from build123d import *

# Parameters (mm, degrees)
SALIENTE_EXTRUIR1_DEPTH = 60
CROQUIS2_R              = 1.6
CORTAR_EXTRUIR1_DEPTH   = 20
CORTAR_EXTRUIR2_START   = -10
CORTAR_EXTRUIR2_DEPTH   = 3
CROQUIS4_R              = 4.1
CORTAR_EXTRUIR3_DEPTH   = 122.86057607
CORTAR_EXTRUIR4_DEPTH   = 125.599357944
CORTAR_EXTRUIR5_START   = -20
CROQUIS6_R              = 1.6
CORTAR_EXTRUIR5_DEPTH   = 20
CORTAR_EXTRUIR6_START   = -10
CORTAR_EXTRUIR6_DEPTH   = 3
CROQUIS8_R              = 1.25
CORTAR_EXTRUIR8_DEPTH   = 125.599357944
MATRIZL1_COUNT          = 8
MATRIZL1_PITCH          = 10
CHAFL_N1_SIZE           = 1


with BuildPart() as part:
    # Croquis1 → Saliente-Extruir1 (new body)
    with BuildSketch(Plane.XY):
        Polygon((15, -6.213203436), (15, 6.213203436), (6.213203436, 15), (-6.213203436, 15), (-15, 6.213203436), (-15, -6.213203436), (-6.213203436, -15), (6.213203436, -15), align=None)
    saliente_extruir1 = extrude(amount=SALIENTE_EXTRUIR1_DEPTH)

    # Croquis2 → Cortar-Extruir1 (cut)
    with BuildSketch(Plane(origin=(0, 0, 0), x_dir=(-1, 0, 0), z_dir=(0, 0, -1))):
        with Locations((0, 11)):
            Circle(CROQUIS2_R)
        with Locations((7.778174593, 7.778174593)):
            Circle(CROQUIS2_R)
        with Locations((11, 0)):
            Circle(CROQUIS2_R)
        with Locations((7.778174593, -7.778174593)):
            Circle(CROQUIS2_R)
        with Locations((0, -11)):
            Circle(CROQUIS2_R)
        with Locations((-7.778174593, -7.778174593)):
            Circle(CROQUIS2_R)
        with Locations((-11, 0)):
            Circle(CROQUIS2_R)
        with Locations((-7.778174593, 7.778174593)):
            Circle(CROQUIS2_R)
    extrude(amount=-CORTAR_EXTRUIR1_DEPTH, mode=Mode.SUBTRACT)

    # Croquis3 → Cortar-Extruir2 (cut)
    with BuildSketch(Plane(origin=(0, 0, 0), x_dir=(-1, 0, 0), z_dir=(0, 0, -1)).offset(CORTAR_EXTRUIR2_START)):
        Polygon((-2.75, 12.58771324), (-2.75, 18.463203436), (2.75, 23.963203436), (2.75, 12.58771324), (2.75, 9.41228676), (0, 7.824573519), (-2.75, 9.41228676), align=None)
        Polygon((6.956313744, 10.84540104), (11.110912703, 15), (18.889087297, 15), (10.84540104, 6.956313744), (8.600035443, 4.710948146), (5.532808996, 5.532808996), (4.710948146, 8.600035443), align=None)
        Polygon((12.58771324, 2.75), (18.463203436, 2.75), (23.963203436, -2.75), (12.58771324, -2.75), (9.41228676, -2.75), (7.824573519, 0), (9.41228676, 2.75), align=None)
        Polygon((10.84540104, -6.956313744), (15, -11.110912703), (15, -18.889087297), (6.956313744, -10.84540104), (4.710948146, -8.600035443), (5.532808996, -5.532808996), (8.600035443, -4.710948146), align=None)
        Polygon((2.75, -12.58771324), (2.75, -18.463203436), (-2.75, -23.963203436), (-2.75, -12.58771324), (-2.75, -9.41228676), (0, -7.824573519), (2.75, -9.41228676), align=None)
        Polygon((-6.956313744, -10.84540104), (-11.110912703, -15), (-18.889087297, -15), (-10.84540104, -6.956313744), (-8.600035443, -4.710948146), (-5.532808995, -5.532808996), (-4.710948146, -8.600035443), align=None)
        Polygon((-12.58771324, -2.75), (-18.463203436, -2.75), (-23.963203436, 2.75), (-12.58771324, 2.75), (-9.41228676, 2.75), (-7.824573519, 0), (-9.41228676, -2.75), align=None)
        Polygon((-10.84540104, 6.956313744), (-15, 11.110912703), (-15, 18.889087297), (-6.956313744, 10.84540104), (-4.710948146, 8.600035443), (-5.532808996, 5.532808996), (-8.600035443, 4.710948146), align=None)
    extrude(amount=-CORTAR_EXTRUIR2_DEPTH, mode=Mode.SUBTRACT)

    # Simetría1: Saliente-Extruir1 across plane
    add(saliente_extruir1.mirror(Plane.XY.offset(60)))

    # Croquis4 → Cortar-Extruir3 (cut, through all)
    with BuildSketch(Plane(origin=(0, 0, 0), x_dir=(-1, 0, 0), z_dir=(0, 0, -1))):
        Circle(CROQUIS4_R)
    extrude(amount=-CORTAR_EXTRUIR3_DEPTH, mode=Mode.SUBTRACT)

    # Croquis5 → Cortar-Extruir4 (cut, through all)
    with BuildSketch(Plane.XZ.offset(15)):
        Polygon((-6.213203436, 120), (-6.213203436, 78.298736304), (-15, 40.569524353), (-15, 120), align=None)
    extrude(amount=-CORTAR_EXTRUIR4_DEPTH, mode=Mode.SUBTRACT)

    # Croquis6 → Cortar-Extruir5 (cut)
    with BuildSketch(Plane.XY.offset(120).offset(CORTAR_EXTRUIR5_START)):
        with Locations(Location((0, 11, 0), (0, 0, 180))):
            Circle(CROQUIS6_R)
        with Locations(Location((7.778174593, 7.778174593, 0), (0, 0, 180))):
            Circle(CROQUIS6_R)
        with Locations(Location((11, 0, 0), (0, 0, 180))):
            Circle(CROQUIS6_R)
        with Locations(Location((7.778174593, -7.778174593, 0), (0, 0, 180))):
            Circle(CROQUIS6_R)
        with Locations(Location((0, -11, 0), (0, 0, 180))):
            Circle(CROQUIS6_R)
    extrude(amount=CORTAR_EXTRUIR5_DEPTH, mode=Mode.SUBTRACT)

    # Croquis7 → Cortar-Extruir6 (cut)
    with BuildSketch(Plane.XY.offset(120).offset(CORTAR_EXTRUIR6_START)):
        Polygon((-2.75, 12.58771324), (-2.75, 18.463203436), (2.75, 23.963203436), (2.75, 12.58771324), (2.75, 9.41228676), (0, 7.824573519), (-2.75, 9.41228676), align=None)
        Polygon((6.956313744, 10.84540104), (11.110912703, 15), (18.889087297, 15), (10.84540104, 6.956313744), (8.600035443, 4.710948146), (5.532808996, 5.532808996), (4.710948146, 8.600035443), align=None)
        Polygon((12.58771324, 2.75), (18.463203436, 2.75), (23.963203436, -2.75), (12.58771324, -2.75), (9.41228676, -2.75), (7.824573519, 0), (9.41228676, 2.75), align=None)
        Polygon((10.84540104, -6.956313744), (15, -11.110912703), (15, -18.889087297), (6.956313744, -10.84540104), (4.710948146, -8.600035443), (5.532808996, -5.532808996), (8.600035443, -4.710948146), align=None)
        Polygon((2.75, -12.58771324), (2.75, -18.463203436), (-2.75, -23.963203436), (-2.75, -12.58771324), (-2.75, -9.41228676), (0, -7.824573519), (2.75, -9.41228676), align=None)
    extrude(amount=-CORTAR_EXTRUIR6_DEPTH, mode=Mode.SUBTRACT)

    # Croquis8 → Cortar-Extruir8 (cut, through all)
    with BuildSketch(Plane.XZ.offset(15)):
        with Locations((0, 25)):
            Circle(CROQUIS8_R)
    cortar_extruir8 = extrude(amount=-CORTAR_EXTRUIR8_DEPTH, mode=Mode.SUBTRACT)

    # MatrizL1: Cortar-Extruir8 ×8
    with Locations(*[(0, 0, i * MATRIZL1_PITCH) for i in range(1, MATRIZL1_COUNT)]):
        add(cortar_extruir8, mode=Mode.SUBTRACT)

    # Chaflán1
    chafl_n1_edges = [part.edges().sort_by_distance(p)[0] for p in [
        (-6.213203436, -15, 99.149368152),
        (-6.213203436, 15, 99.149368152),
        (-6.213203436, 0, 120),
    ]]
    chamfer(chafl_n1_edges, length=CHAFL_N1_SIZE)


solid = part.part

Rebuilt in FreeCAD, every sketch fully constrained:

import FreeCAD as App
import Part
import Sketcher
Q = App.Units.Quantity


def edges_at(feature, points):
    """Names of the edges that pass closest to the given points."""
    edges = feature.Shape.Edges
    near = lambda p: min(range(len(edges)), key=lambda i: edges[i].distToShape(Part.Vertex(*p))[0])
    return sorted({f"Edge{near(p) + 1}" for p in points})


def add_polygon(sketch, points):
    """Adds a closed chain of lines whose ends are joined by coincident constraints."""
    first, n = sketch.GeometryCount, len(points)
    for a, b in zip(points, points[1:] + points[:1]):
        sketch.addGeometry(Part.LineSegment(App.Vector(*a, 0), App.Vector(*b, 0)), False)
    for i in range(n):
        sketch.addConstraint(Sketcher.Constraint("Coincident", first + i, 2, first + (i + 1) % n, 1))

doc = App.newDocument("Part")
body = doc.addObject("PartDesign::Body", "Body")

sketch1 = body.newObject("Sketcher::SketchObject", "Sketch")
sketch1.AttachmentSupport = (doc.getObject("XY_Plane"), [""])
sketch1.MapMode = "FlatFace"
add_polygon(sketch1, [(15, -6), (15, 6), (6, 15), (-6, 15), (-15, 6), (-15, -6), (-6, -15), (6, -15)])
sketch1.addConstraint([
    Sketcher.Constraint("Vertical", 0),
    Sketcher.Constraint("Horizontal", 2),
    Sketcher.Constraint("Vertical", 4),
    Sketcher.Constraint("Horizontal", 6),
    Sketcher.Constraint("Symmetric", 0, 2, 4, 2, -1, 1),
    Sketcher.Constraint("Symmetric", 1, 2, 5, 2, -1, 1),
    Sketcher.Constraint("Perpendicular", 1, 3),
    Sketcher.Constraint("Perpendicular", 5, 7),
    Sketcher.Constraint("Horizontal", 0, 2, 3, 2),
    Sketcher.Constraint("Horizontal", 4, 2, 7, 2),
    Sketcher.Constraint("Vertical", 2, 2, 5, 2),
    Sketcher.Constraint("Equal", 6, 0),
    Sketcher.Constraint("DistanceX", -1, 1, 0, 2, Q("15 mm")),
    Sketcher.Constraint("DistanceX", 2, 2, 2, 1, Q("12.426407 mm")),
])
pad1 = body.newObject("PartDesign::Pad", "Pad")
pad1.Profile = sketch1
pad1.Length = 60

sketch2 = body.newObject("Sketcher::SketchObject", "Sketch001")
sketch2.AttachmentSupport = (doc.getObject("XY_Plane"), [""])
sketch2.MapMode = "FlatFace"
sketch2.addGeometry([
    Part.Circle(App.Vector(0, 11, 0), App.Vector(0, 0, 1), 1.6),
    Part.Circle(App.Vector(-7.8, 7.8, 0), App.Vector(0, 0, 1), 1.6),
    Part.Circle(App.Vector(-11, 0, 0), App.Vector(0, 0, 1), 1.6),
    Part.Circle(App.Vector(-7.8, -7.8, 0), App.Vector(0, 0, 1), 1.6),
    Part.Circle(App.Vector(0, -11, 0), App.Vector(0, 0, 1), 1.6),
    Part.Circle(App.Vector(7.8, -7.8, 0), App.Vector(0, 0, 1), 1.6),
    Part.Circle(App.Vector(11, 0, 0), App.Vector(0, 0, 1), 1.6),
    Part.Circle(App.Vector(7.8, 7.8, 0), App.Vector(0, 0, 1), 1.6),
], False)
sketch2.addConstraint([
    Sketcher.Constraint("Equal", 0, 1),
    Sketcher.Constraint("Equal", 1, 2),
    Sketcher.Constraint("Equal", 2, 3),
    Sketcher.Constraint("Equal", 3, 4),
    Sketcher.Constraint("Equal", 4, 5),
    Sketcher.Constraint("Equal", 5, 6),
    Sketcher.Constraint("Equal", 6, 7),
    Sketcher.Constraint("Symmetric", 0, 3, 4, 3, -1, 1),
    Sketcher.Constraint("Symmetric", 1, 3, 5, 3, -1, 1),
    Sketcher.Constraint("Symmetric", 2, 3, 6, 3, -1, 1),
    Sketcher.Constraint("Symmetric", 3, 3, 7, 3, -1, 1),
    Sketcher.Constraint("Symmetric", 3, 3, 5, 3, -2),
    Sketcher.Constraint("PointOnObject", 0, 3, -2),
    Sketcher.Constraint("PointOnObject", 2, 3, -1),
    Sketcher.Constraint("Diameter", 0, Q("3.2 mm")),
    Sketcher.Constraint("DistanceY", -1, 1, 0, 3, Q("11 mm")),
    Sketcher.Constraint("DistanceX", 2, 3, -1, 1, Q("11 mm")),
    Sketcher.Constraint("DistanceY", 3, 3, 1, 3, Q("15.556349 mm")),
    Sketcher.Constraint("DistanceX", 3, 3, 5, 3, Q("15.556349 mm")),
])
pocket1 = body.newObject("PartDesign::Pocket", "Pocket")
pocket1.Profile = sketch2
pocket1.Length = 20
pocket1.Reversed = True

sketch3 = body.newObject("Sketcher::SketchObject", "Sketch002")
sketch3.AttachmentSupport = (doc.getObject("XY_Plane"), [""])
sketch3.MapMode = "FlatFace"
sketch3.AttachmentOffset = App.Placement(App.Vector(0, 0, 10), App.Rotation())
add_polygon(sketch3, [(2.8, 18.5), (2.8, 9.4), (0, 7.8), (-2.8, 9.4), (-2.8, 24)])
add_polygon(sketch3, [(-11.1, 15), (-7, 10.8), (-4.7, 8.6), (-5.5, 5.5), (-8.6, 4.7), (-10.8, 7), (-18.9, 15)])
add_polygon(sketch3, [(-18.5, 2.8), (-9.4, 2.8), (-7.8, 0), (-9.4, -2.8), (-24, -2.8)])
add_polygon(sketch3, [(-15, -11.1), (-10.8, -7), (-8.6, -4.7), (-5.5, -5.5), (-4.7, -8.6), (-7, -10.8), (-15, -18.9)])
add_polygon(sketch3, [(-2.8, -18.5), (-2.8, -9.4), (0, -7.8), (2.8, -9.4), (2.8, -24)])
add_polygon(sketch3, [(11.1, -15), (7, -10.8), (4.7, -8.6), (5.5, -5.5), (8.6, -4.7), (10.8, -7), (18.9, -15)])
add_polygon(sketch3, [(18.5, -2.8), (9.4, -2.8), (7.8, 0), (9.4, 2.8), (24, 2.8)])
add_polygon(sketch3, [(15, 11.1), (10.8, 7), (8.6, 4.7), (5.5, 5.5), (4.7, 8.6), (7, 10.8), (15, 18.9)])
sketch3.addConstraint([
    Sketcher.Constraint("Vertical", 0),
    Sketcher.Constraint("Vertical", 3),
    Sketcher.Constraint("Horizontal", 11),
    Sketcher.Constraint("Horizontal", 12),
    Sketcher.Constraint("Horizontal", 15),
    Sketcher.Constraint("Vertical", 23),
    Sketcher.Constraint("Vertical", 24),
    Sketcher.Constraint("Vertical", 27),
    Sketcher.Constraint("Horizontal", 35),
    Sketcher.Constraint("Horizontal", 36),
    Sketcher.Constraint("Horizontal", 39),
    Sketcher.Constraint("Vertical", 47),
    Sketcher.Constraint("Symmetric", 0, 2, 24, 2, -1, 1),
    Sketcher.Constraint("Symmetric", 1, 2, 25, 2, -1, 1),
    Sketcher.Constraint("Symmetric", 2, 2, 26, 2, -1, 1),
    Sketcher.Constraint("Symmetric", 5, 2, 29, 2, -1, 1),
    Sketcher.Constraint("Symmetric", 6, 2, 30, 2, -1, 1),
    Sketcher.Constraint("Symmetric", 7, 2, 31, 2, -1, 1),
    Sketcher.Constraint("Symmetric", 8, 2, 32, 2, -1, 1),
    Sketcher.Constraint("Symmetric", 9, 2, 33, 2, -1, 1),
    Sketcher.Constraint("Symmetric", 10, 2, 34, 2, -1, 1),
    Sketcher.Constraint("Symmetric", 12, 2, 36, 2, -1, 1),
    Sketcher.Constraint("Symmetric", 13, 2, 37, 2, -1, 1),
    Sketcher.Constraint("Symmetric", 14, 2, 38, 2, -1, 1),
    Sketcher.Constraint("Symmetric", 17, 2, 41, 2, -1, 1),
    Sketcher.Constraint("Symmetric", 18, 2, 42, 2, -1, 1),
    Sketcher.Constraint("Symmetric", 19, 2, 43, 2, -1, 1),
    Sketcher.Constraint("Symmetric", 20, 2, 44, 2, -1, 1),
    Sketcher.Constraint("Symmetric", 21, 2, 45, 2, -1, 1),
    Sketcher.Constraint("Symmetric", 22, 2, 46, 2, -1, 1),
    Sketcher.Constraint("Symmetric", 0, 2, 2, 2, -2),
    Sketcher.Constraint("Symmetric", 21, 2, 29, 2, -2),
    Sketcher.Constraint("Symmetric", 20, 2, 30, 2, -2),
    Sketcher.Constraint("Symmetric", 19, 2, 31, 2, -2),
    Sketcher.Constraint("Symmetric", 18, 2, 32, 2, -2),
    Sketcher.Constraint("Symmetric", 17, 2, 33, 2, -2),
    Sketcher.Constraint("Symmetric", 14, 2, 36, 2, -2),
    Sketcher.Constraint("PointOnObject", 1, 2, -2),
    Sketcher.Constraint("PointOnObject", 13, 2, -1),
    Sketcher.Constraint("Parallel", 4, 5),
    Sketcher.Constraint("Parallel", 5, 6),
    Sketcher.Constraint("Parallel", 6, 9),
    Sketcher.Constraint("Parallel", 9, 10),
    Sketcher.Constraint("Perpendicular", 1, 13),
    Sketcher.Constraint("Perpendicular", 10, 16),
    Sketcher.Constraint("Parallel", 16, 17),
    Sketcher.Constraint("Parallel", 17, 18),
    Sketcher.Constraint("Perpendicular", 7, 19),
    Sketcher.Constraint("Parallel", 21, 22),
    Sketcher.Constraint("Perpendicular", 22, 28),
    Sketcher.Constraint("Parallel", 28, 29),
    Sketcher.Constraint("Perpendicular", 34, 40),
    Sketcher.Constraint("Parallel", 40, 41),
    Sketcher.Constraint("Equal", 12, 36),
    Sketcher.Constraint("Equal", 36, 0),
    Sketcher.Constraint("Equal", 39, 3),
    Sketcher.Constraint("Equal", 0, 24),
    Sketcher.Constraint("Equal", 2, 6),
    Sketcher.Constraint("Equal", 6, 7),
    Sketcher.Constraint("Equal", 7, 8),
    Sketcher.Constraint("Equal", 8, 9),
    Sketcher.Constraint("Equal", 5, 17),
    Sketcher.Constraint("Angle", 1, Q("-150 deg")),
    Sketcher.Constraint("Angle", 7, Q("-105 deg")),
    Sketcher.Constraint("DistanceY", -1, 1, 10, 2, Q("15 mm")),
    Sketcher.Constraint("DistanceX", 22, 2, -1, 1, Q("15 mm")),
    Sketcher.Constraint("DistanceX", 2, 2, 0, 2, Q("5.5 mm")),
    Sketcher.Constraint("DistanceY", -1, 1, 5, 2, Q("10.845401 mm")),
    Sketcher.Constraint("DistanceY", 0, 2, 46, 2, Q("9.476801 mm")),
    Sketcher.Constraint("DistanceX", 12, 1, 12, 2, Q("9.050917 mm")),
    Sketcher.Constraint("DistanceX", 12, 2, 8, 2, Q("0.812251 mm")),
])
pocket2 = body.newObject("PartDesign::Pocket", "Pocket001")
pocket2.Profile = sketch3
pocket2.Length = 3
pocket2.Reversed = True
doc.recompute()

datumplane = body.newObject("PartDesign::Plane", "DatumPlane")
datumplane.AttachmentSupport = (doc.getObject("XY_Plane"), [""])
datumplane.MapMode = "FlatFace"
datumplane.AttachmentOffset = App.Placement(App.Vector(0, 0, 60), App.Rotation())
mirrored = body.newObject("PartDesign::Mirrored", "Mirrored")
mirrored.Originals = [pad1]
mirrored.MirrorPlane = (datumplane, [""])
body.Tip = mirrored

sketch4 = body.newObject("Sketcher::SketchObject", "Sketch003")
sketch4.AttachmentSupport = (doc.getObject("XY_Plane"), [""])
sketch4.MapMode = "FlatFace"
sketch4.addGeometry(Part.Circle(App.Vector(0, 0, 0), App.Vector(0, 0, 1), 4.1), False)
sketch4.addConstraint([
    Sketcher.Constraint("Coincident", 0, 3, -1, 1),
    Sketcher.Constraint("Diameter", 0, Q("8.2 mm")),
])
pocket3 = body.newObject("PartDesign::Pocket", "Pocket002")
pocket3.Profile = sketch4
pocket3.Type = "ThroughAll"
pocket3.Reversed = True

sketch5 = body.newObject("Sketcher::SketchObject", "Sketch004")
sketch5.AttachmentSupport = (doc.getObject("XZ_Plane"), [""])
sketch5.MapMode = "FlatFace"
sketch5.AttachmentOffset = App.Placement(App.Vector(0, 0, 15), App.Rotation())
add_polygon(sketch5, [(-6, 78), (-6, 120), (-15, 120), (-15, 41)])
sketch5.addConstraint([
    Sketcher.Constraint("Vertical", 0),
    Sketcher.Constraint("Horizontal", 1),
    Sketcher.Constraint("Vertical", 2),
    Sketcher.Constraint("DistanceY", -1, 1, 0, 2, Q("120 mm")),
    Sketcher.Constraint("DistanceX", 1, 2, -1, 1, Q("15 mm")),
    Sketcher.Constraint("Angle", 3, Q("76.890011 deg")),
    Sketcher.Constraint("DistanceX", 1, 2, 1, 1, Q("8.786797 mm")),
    Sketcher.Constraint("DistanceY", 0, 1, 0, 2, Q("41.701264 mm")),
])
pocket4 = body.newObject("PartDesign::Pocket", "Pocket003")
pocket4.Profile = sketch5
pocket4.Type = "ThroughAll"

sketch6 = body.newObject("Sketcher::SketchObject", "Sketch005")
sketch6.AttachmentSupport = (doc.getObject("XY_Plane"), [""])
sketch6.MapMode = "FlatFace"
sketch6.AttachmentOffset = App.Placement(App.Vector(0, 0, 100), App.Rotation())
sketch6.addGeometry([
    Part.Circle(App.Vector(0, 11, 0), App.Vector(0, 0, 1), 1.6),
    Part.Circle(App.Vector(7.8, 7.8, 0), App.Vector(0, 0, 1), 1.6),
    Part.Circle(App.Vector(11, 0, 0), App.Vector(0, 0, 1), 1.6),
    Part.Circle(App.Vector(7.8, -7.8, 0), App.Vector(0, 0, 1), 1.6),
    Part.Circle(App.Vector(0, -11, 0), App.Vector(0, 0, 1), 1.6),
], False)
sketch6.addConstraint([
    Sketcher.Constraint("Equal", 0, 1),
    Sketcher.Constraint("Equal", 1, 2),
    Sketcher.Constraint("Equal", 2, 3),
    Sketcher.Constraint("Equal", 3, 4),
    Sketcher.Constraint("Symmetric", 0, 3, 4, 3, -1, 1),
    Sketcher.Constraint("Symmetric", 1, 3, 3, 3, -1),
    Sketcher.Constraint("PointOnObject", 0, 3, -2),
    Sketcher.Constraint("PointOnObject", 2, 3, -1),
    Sketcher.Constraint("Diameter", 0, Q("3.2 mm")),
    Sketcher.Constraint("DistanceY", -1, 1, 0, 3, Q("11 mm")),
    Sketcher.Constraint("DistanceX", -1, 1, 2, 3, Q("11 mm")),
    Sketcher.Constraint("DistanceY", 3, 3, 1, 3, Q("15.556349 mm")),
    Sketcher.Constraint("DistanceX", -1, 1, 1, 3, Q("7.778175 mm")),
])
pocket5 = body.newObject("PartDesign::Pocket", "Pocket004")
pocket5.Profile = sketch6
pocket5.Length = 20
pocket5.Reversed = True

sketch7 = body.newObject("Sketcher::SketchObject", "Sketch006")
sketch7.AttachmentSupport = (doc.getObject("XY_Plane"), [""])
sketch7.MapMode = "FlatFace"
sketch7.AttachmentOffset = App.Placement(App.Vector(0, 0, 110), App.Rotation())
add_polygon(sketch7, [(-2.8, 18.5), (-2.8, 9.4), (0, 7.8), (2.8, 9.4), (2.8, 24)])
add_polygon(sketch7, [(11.1, 15), (7, 10.8), (4.7, 8.6), (5.5, 5.5), (8.6, 4.7), (10.8, 7), (18.9, 15)])
add_polygon(sketch7, [(18.5, 2.8), (9.4, 2.8), (7.8, 0), (9.4, -2.8), (24, -2.8)])
add_polygon(sketch7, [(15, -11.1), (10.8, -7), (8.6, -4.7), (5.5, -5.5), (4.7, -8.6), (7, -10.8), (15, -18.9)])
add_polygon(sketch7, [(2.8, -18.5), (2.8, -9.4), (0, -7.8), (-2.8, -9.4), (-2.8, -24)])
sketch7.addConstraint([
    Sketcher.Constraint("Vertical", 0),
    Sketcher.Constraint("Vertical", 3),
    Sketcher.Constraint("Horizontal", 11),
    Sketcher.Constraint("Horizontal", 12),
    Sketcher.Constraint("Horizontal", 15),
    Sketcher.Constraint("Vertical", 23),
    Sketcher.Constraint("Vertical", 24),
    Sketcher.Constraint("Vertical", 27),
    Sketcher.Constraint("Symmetric", 0, 2, 24, 2, -1, 1),
    Sketcher.Constraint("Symmetric", 1, 2, 25, 2, -1, 1),
    Sketcher.Constraint("Symmetric", 2, 2, 26, 2, -1, 1),
    Sketcher.Constraint("Symmetric", 0, 2, 2, 2, -2),
    Sketcher.Constraint("Symmetric", 12, 2, 14, 2, -1),
    Sketcher.Constraint("Symmetric", 9, 2, 17, 2, -1),
    Sketcher.Constraint("Symmetric", 8, 2, 18, 2, -1),
    Sketcher.Constraint("Symmetric", 7, 2, 19, 2, -1),
    Sketcher.Constraint("Symmetric", 6, 2, 20, 2, -1),
    Sketcher.Constraint("Symmetric", 5, 2, 21, 2, -1),
    Sketcher.Constraint("PointOnObject", 1, 2, -2),
    Sketcher.Constraint("PointOnObject", 13, 2, -1),
    Sketcher.Constraint("Parallel", 4, 5),
    Sketcher.Constraint("Parallel", 5, 6),
    Sketcher.Constraint("Parallel", 6, 9),
    Sketcher.Constraint("Parallel", 9, 10),
    Sketcher.Constraint("Perpendicular", 1, 13),
    Sketcher.Constraint("Perpendicular", 10, 16),
    Sketcher.Constraint("Parallel", 16, 17),
    Sketcher.Constraint("Parallel", 17, 18),
    Sketcher.Constraint("Perpendicular", 7, 19),
    Sketcher.Constraint("Parallel", 21, 22),
    Sketcher.Constraint("Perpendicular", 22, 28),
    Sketcher.Constraint("Equal", 12, 0),
    Sketcher.Constraint("Equal", 15, 3),
    Sketcher.Constraint("Equal", 0, 24),
    Sketcher.Constraint("Equal", 2, 6),
    Sketcher.Constraint("Equal", 6, 7),
    Sketcher.Constraint("Equal", 7, 8),
    Sketcher.Constraint("Equal", 8, 9),
    Sketcher.Constraint("Equal", 5, 17),
    Sketcher.Constraint("Angle", 1, Q("-30 deg")),
    Sketcher.Constraint("Angle", 7, Q("-75 deg")),
    Sketcher.Constraint("DistanceY", -1, 1, 10, 2, Q("15 mm")),
    Sketcher.Constraint("DistanceX", -1, 1, 22, 2, Q("15 mm")),
    Sketcher.Constraint("DistanceX", 0, 2, 2, 2, Q("5.5 mm")),
    Sketcher.Constraint("DistanceY", -1, 1, 5, 2, Q("10.845401 mm")),
    Sketcher.Constraint("DistanceX", 12, 2, 12, 1, Q("9.050917 mm")),
    Sketcher.Constraint("DistanceY", 6, 2, 2, 2, Q("0.812251 mm")),
    Sketcher.Constraint("DistanceX", 8, 2, 12, 2, Q("0.812251 mm")),
])
pocket6 = body.newObject("PartDesign::Pocket", "Pocket005")
pocket6.Profile = sketch7
pocket6.Length = 3

sketch8 = body.newObject("Sketcher::SketchObject", "Sketch007")
sketch8.AttachmentSupport = (doc.getObject("XZ_Plane"), [""])
sketch8.MapMode = "FlatFace"
sketch8.AttachmentOffset = App.Placement(App.Vector(0, 0, 15), App.Rotation())
sketch8.addGeometry(Part.Circle(App.Vector(0, 25, 0), App.Vector(0, 0, 1), 1.2), False)
sketch8.addConstraint([
    Sketcher.Constraint("PointOnObject", 0, 3, -2),
    Sketcher.Constraint("Diameter", 0, Q("2.5 mm")),
    Sketcher.Constraint("DistanceY", -1, 1, 0, 3, Q("25 mm")),
])
pocket7 = body.newObject("PartDesign::Pocket", "Pocket006")
pocket7.Profile = sketch8
pocket7.Type = "ThroughAll"
doc.recompute()

linearpattern = body.newObject("PartDesign::LinearPattern", "LinearPattern")
linearpattern.Originals = [pocket7]
linearpattern.Direction = (doc.getObject("Z_Axis"), [""])
linearpattern.Mode = "offset"
linearpattern.Offset = 10
linearpattern.Occurrences = 8
body.Tip = linearpattern
doc.recompute()

chamfer = body.newObject("PartDesign::Chamfer", "Chamfer")
chamfer.Base = (linearpattern, edges_at(linearpattern, [(-6.213, -15, 99.149), (-6.213, 15, 99.149), (-6.213, 0, 120)]))
chamfer.Size = 1

doc.recompute()
